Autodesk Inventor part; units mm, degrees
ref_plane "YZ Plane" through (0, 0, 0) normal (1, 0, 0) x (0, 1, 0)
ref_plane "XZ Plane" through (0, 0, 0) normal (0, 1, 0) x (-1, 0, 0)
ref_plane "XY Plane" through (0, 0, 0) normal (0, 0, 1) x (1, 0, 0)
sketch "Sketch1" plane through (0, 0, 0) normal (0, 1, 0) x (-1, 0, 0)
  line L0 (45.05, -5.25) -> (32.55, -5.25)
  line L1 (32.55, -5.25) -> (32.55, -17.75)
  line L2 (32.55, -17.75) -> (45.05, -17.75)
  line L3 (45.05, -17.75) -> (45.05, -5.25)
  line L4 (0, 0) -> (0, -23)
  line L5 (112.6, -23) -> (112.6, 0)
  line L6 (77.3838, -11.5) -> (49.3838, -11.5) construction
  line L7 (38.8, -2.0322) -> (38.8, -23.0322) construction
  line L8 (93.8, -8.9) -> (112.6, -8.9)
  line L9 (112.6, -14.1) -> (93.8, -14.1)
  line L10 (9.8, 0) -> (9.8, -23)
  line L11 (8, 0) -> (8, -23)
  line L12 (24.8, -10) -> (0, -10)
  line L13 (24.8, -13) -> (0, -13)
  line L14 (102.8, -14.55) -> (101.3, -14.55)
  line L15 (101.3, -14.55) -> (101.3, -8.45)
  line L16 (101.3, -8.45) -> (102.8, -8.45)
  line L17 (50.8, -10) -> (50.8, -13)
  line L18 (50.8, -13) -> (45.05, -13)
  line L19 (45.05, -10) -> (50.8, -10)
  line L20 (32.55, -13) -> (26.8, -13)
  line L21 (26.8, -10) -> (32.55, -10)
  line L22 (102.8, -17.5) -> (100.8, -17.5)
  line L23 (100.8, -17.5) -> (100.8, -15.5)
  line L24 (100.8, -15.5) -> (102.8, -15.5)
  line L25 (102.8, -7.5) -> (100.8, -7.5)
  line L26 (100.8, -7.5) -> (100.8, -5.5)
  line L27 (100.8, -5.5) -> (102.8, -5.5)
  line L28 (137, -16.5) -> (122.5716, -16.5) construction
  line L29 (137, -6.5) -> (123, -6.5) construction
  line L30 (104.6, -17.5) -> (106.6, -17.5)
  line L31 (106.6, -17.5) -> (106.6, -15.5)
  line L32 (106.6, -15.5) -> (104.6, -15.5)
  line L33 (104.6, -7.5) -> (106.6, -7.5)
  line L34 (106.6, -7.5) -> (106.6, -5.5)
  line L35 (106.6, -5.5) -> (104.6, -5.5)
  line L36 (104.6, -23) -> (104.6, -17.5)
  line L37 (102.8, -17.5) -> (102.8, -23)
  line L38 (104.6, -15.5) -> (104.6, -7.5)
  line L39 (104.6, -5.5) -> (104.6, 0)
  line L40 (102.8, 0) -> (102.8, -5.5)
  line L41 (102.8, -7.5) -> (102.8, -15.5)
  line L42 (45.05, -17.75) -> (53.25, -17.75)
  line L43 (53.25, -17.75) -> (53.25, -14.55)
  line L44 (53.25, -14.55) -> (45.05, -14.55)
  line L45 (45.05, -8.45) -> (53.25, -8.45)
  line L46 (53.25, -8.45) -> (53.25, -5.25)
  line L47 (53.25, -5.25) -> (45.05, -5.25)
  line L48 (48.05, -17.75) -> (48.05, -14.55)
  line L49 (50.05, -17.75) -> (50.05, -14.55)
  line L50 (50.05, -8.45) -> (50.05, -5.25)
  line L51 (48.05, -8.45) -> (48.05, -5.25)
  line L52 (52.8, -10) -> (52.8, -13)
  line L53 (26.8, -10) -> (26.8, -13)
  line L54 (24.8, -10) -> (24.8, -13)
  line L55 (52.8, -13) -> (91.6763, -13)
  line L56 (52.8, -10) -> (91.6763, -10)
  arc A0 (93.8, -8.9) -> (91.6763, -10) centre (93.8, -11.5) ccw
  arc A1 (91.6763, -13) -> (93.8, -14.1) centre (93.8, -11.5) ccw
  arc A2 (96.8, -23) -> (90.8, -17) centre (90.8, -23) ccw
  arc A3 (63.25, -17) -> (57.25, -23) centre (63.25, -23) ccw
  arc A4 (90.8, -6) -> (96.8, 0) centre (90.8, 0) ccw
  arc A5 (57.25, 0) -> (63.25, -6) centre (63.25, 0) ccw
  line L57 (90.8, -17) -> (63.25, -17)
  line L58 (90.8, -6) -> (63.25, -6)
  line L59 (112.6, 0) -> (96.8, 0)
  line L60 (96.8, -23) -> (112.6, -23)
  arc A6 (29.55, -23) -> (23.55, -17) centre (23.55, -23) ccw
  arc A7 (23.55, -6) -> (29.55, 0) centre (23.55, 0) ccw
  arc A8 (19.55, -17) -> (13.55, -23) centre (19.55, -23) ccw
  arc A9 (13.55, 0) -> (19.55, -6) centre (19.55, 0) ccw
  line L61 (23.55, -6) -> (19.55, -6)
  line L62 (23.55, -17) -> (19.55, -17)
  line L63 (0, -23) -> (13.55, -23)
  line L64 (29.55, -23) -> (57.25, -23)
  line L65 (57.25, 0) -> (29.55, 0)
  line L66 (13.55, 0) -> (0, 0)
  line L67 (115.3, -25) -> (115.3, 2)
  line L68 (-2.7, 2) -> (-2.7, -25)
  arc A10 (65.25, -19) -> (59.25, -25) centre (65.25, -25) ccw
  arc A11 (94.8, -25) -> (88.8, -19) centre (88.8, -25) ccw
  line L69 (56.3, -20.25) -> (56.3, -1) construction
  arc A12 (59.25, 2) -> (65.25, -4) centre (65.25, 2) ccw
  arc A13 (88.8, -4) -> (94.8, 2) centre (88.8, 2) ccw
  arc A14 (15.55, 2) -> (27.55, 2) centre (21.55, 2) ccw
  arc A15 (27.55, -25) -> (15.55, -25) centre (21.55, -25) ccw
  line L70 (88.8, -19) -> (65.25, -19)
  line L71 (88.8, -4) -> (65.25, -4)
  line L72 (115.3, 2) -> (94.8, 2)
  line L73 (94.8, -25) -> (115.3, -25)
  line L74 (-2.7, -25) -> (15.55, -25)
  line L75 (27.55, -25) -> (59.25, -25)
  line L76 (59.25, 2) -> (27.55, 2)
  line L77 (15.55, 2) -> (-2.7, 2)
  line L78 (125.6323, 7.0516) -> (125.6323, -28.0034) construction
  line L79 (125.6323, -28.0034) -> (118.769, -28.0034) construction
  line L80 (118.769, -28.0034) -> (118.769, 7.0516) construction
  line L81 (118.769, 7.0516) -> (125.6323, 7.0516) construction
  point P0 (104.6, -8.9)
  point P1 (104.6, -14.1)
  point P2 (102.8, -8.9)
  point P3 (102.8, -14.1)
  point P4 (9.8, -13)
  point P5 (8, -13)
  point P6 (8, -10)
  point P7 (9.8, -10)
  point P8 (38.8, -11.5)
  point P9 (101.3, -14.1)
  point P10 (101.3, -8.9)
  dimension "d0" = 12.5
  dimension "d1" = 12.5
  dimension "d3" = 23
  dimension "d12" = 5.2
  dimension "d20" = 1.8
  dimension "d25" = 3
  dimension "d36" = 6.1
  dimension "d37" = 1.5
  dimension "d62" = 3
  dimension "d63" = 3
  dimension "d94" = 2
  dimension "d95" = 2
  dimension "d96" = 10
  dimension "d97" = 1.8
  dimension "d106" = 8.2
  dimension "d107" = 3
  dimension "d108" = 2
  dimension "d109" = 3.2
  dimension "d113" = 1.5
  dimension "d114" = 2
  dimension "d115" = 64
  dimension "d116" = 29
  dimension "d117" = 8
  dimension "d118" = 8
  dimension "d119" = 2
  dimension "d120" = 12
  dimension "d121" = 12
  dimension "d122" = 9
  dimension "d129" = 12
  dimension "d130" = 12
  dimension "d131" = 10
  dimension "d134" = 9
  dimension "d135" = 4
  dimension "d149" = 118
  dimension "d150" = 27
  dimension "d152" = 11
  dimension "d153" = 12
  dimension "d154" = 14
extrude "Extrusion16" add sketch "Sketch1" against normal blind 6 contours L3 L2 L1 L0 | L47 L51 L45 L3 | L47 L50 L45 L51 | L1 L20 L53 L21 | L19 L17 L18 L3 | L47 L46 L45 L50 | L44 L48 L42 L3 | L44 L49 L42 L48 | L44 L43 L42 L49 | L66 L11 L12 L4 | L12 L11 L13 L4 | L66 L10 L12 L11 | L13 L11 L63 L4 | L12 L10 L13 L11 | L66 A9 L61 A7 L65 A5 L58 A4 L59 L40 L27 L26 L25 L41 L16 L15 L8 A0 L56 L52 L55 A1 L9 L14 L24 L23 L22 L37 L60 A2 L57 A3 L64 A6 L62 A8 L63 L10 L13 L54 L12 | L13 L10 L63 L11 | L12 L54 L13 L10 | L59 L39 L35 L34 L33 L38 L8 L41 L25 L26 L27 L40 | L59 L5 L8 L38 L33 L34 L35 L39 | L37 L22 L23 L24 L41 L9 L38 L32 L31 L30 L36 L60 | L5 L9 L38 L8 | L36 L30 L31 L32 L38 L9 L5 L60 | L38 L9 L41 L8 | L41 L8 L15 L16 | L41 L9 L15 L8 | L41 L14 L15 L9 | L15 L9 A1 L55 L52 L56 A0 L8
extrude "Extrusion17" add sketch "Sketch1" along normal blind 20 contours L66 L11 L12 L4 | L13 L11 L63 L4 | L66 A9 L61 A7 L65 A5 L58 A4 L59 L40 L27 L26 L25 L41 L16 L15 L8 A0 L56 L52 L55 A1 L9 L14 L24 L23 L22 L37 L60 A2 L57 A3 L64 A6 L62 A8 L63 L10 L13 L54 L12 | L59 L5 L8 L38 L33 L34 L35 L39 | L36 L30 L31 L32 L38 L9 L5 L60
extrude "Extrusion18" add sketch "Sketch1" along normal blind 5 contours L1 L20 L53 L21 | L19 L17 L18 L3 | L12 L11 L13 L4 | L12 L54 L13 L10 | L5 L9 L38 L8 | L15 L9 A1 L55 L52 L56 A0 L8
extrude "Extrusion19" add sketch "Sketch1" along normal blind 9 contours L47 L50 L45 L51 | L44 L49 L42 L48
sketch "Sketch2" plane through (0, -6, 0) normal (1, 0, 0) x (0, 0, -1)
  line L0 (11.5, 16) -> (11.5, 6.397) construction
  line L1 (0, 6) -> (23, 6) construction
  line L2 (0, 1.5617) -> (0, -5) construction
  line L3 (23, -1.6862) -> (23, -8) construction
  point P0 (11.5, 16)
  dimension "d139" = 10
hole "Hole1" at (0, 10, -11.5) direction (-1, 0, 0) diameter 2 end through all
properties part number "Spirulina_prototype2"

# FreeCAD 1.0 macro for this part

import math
import FreeCAD as App
import Part
import Sketcher
Q = App.Units.Quantity


def add_polygon(sketch, points):
    """Adds a closed chain of lines whose ends are joined by coincident constraints."""
    first, n = sketch.GeometryCount, len(points)
    for a, b in zip(points, points[1:] + points[:1]):
        sketch.addGeometry(Part.LineSegment(App.Vector(*a, 0), App.Vector(*b, 0)), False)
    for i in range(n):
        sketch.addConstraint(Sketcher.Constraint("Coincident", first + i, 2, first + (i + 1) % n, 1))

doc = App.newDocument("Part")
body = doc.addObject("PartDesign::Body", "Body")

sketch1 = doc.addObject("Sketcher::SketchObject", "Sketch")
body.addObject(sketch1)
sketch1.AttachmentSupport = (doc.XZ_Plane, [""])
sketch1.MapMode = "FlatFace"
sketch1.addGeometry(Part.LineSegment(App.Vector(-13.6, 0, 0), App.Vector(0, 0, 0)), False)
sketch1.addGeometry(Part.LineSegment(App.Vector(0, 0, 0), App.Vector(0, -23, 0)), False)
sketch1.addGeometry(Part.LineSegment(App.Vector(0, -23, 0), App.Vector(-13.6, -23, 0)), False)
sketch1.addGeometry(Part.ArcOfCircle(Part.Circle(App.Vector(-19.6, -23, 0), App.Vector(0, 0, 1), 6), math.radians(0), math.radians(90)), False)
sketch1.addGeometry(Part.LineSegment(App.Vector(-19.6, -17, 0), App.Vector(-23.6, -17, 0)), False)
sketch1.addGeometry(Part.ArcOfCircle(Part.Circle(App.Vector(-23.6, -23, 0), App.Vector(0, 0, 1), 6), math.radians(90), math.radians(180)), False)
sketch1.addGeometry(Part.LineSegment(App.Vector(-29.6, -23, 0), App.Vector(-57.2, -23, 0)), False)
sketch1.addGeometry(Part.ArcOfCircle(Part.Circle(App.Vector(-63.2, -23, 0), App.Vector(0, 0, 1), 6), math.radians(0), math.radians(90)), False)
sketch1.addGeometry(Part.LineSegment(App.Vector(-63.2, -17, 0), App.Vector(-90.8, -17, 0)), False)
sketch1.addGeometry(Part.ArcOfCircle(Part.Circle(App.Vector(-90.8, -23, 0), App.Vector(0, 0, 1), 6), math.radians(90), math.radians(180)), False)
sketch1.addGeometry(Part.LineSegment(App.Vector(-96.8, -23, 0), App.Vector(-112.6, -23, 0)), False)
sketch1.addGeometry(Part.LineSegment(App.Vector(-112.6, -23, 0), App.Vector(-112.6, 0, 0)), False)
sketch1.addGeometry(Part.LineSegment(App.Vector(-112.6, 0, 0), App.Vector(-96.8, 0, 0)), False)
sketch1.addGeometry(Part.ArcOfCircle(Part.Circle(App.Vector(-90.8, 0, 0), App.Vector(0, 0, 1), 6), math.radians(180), math.radians(270)), False)
sketch1.addGeometry(Part.LineSegment(App.Vector(-90.8, -6, 0), App.Vector(-63.2, -6, 0)), False)
sketch1.addGeometry(Part.ArcOfCircle(Part.Circle(App.Vector(-63.2, 0, 0), App.Vector(0, 0, 1), 6), math.radians(-90), math.radians(0)), False)
sketch1.addGeometry(Part.LineSegment(App.Vector(-57.2, 0, 0), App.Vector(-29.6, 0, 0)), False)
sketch1.addGeometry(Part.ArcOfCircle(Part.Circle(App.Vector(-23.6, 0, 0), App.Vector(0, 0, 1), 6), math.radians(180), math.radians(270)), False)
sketch1.addGeometry(Part.LineSegment(App.Vector(-23.6, -6, 0), App.Vector(-19.6, -6, 0)), False)
sketch1.addGeometry(Part.ArcOfCircle(Part.Circle(App.Vector(-19.6, 0, 0), App.Vector(0, 0, 1), 6), math.radians(-90), math.radians(0)), False)
sketch1.addConstraint(Sketcher.Constraint("Coincident", 0, 2, 1, 1))
sketch1.addConstraint(Sketcher.Constraint("Coincident", 1, 2, 2, 1))
sketch1.addConstraint(Sketcher.Constraint("Coincident", 2, 2, 3, 1))
sketch1.addConstraint(Sketcher.Constraint("Tangent", 3, 2, 4, 1))
sketch1.addConstraint(Sketcher.Constraint("Tangent", 4, 2, 5, 1))
sketch1.addConstraint(Sketcher.Constraint("Coincident", 5, 2, 6, 1))
sketch1.addConstraint(Sketcher.Constraint("Coincident", 6, 2, 7, 1))
sketch1.addConstraint(Sketcher.Constraint("Tangent", 7, 2, 8, 1))
sketch1.addConstraint(Sketcher.Constraint("Tangent", 8, 2, 9, 1))
sketch1.addConstraint(Sketcher.Constraint("Coincident", 9, 2, 10, 1))
sketch1.addConstraint(Sketcher.Constraint("Coincident", 10, 2, 11, 1))
sketch1.addConstraint(Sketcher.Constraint("Coincident", 11, 2, 12, 1))
sketch1.addConstraint(Sketcher.Constraint("Coincident", 12, 2, 13, 1))
sketch1.addConstraint(Sketcher.Constraint("Tangent", 13, 2, 14, 1))
sketch1.addConstraint(Sketcher.Constraint("Tangent", 14, 2, 15, 1))
sketch1.addConstraint(Sketcher.Constraint("Coincident", 15, 2, 16, 1))
sketch1.addConstraint(Sketcher.Constraint("Coincident", 16, 2, 17, 1))
sketch1.addConstraint(Sketcher.Constraint("Tangent", 17, 2, 18, 1))
sketch1.addConstraint(Sketcher.Constraint("Tangent", 18, 2, 19, 1))
sketch1.addConstraint(Sketcher.Constraint("Coincident", 19, 2, 0, 1))
sketch1.addConstraint(Sketcher.Constraint("Horizontal", 0))
sketch1.addConstraint(Sketcher.Constraint("Vertical", 1))
sketch1.addConstraint(Sketcher.Constraint("Horizontal", 2))
sketch1.addConstraint(Sketcher.Constraint("Horizontal", 4))
sketch1.addConstraint(Sketcher.Constraint("Horizontal", 6))
sketch1.addConstraint(Sketcher.Constraint("Horizontal", 8))
sketch1.addConstraint(Sketcher.Constraint("Horizontal", 10))
sketch1.addConstraint(Sketcher.Constraint("Vertical", 11))
sketch1.addConstraint(Sketcher.Constraint("Horizontal", 12))
sketch1.addConstraint(Sketcher.Constraint("Horizontal", 14))
sketch1.addConstraint(Sketcher.Constraint("Horizontal", 16))
sketch1.addConstraint(Sketcher.Constraint("Horizontal", 18))
sketch1.addConstraint(Sketcher.Constraint("Coincident", 0, 2, -1, 1))
sketch1.addConstraint(Sketcher.Constraint("Equal", 3, 5))
sketch1.addConstraint(Sketcher.Constraint("Equal", 5, 7))
sketch1.addConstraint(Sketcher.Constraint("Equal", 7, 9))
sketch1.addConstraint(Sketcher.Constraint("Equal", 9, 13))
sketch1.addConstraint(Sketcher.Constraint("Equal", 13, 15))
sketch1.addConstraint(Sketcher.Constraint("Equal", 15, 17))
sketch1.addConstraint(Sketcher.Constraint("Equal", 17, 19))
sketch1.addConstraint(Sketcher.Constraint("PointOnObject", 13, 3, -1))
sketch1.addConstraint(Sketcher.Constraint("PointOnObject", 17, 3, -1))
sketch1.addConstraint(Sketcher.Constraint("PointOnObject", 11, 2, -1))
sketch1.addConstraint(Sketcher.Constraint("PointOnObject", 15, 2, -1))
sketch1.addConstraint(Sketcher.Constraint("Horizontal", 5, 3, 7, 3))
sketch1.addConstraint(Sketcher.Constraint("Horizontal", 9, 3, 1, 2))
sketch1.addConstraint(Sketcher.Constraint("Horizontal", 2, 2, 5, 2))
sketch1.addConstraint(Sketcher.Constraint("Horizontal", 6, 2, 9, 2))
sketch1.addConstraint(Sketcher.Constraint("Vertical", 9, 3, 13, 3))
sketch1.addConstraint(Sketcher.Constraint("Vertical", 7, 3, 15, 3))
sketch1.addConstraint(Sketcher.Constraint("Vertical", 5, 3, 17, 3))
sketch1.addConstraint(Sketcher.Constraint("Vertical", 3, 3, 19, 3))
sketch1.addConstraint(Sketcher.Constraint("Radius", 3, Q("6 mm")))
sketch1.addConstraint(Sketcher.Constraint("DistanceX", 4, 2, 4, 1, Q("4 mm")))
sketch1.addConstraint(Sketcher.Constraint("DistanceY", 1, 2, 1, 1, Q("23 mm")))
sketch1.addConstraint(Sketcher.Constraint("DistanceX", 6, 2, 6, 1, Q("27.7 mm")))
sketch1.addConstraint(Sketcher.Constraint("DistanceX", 10, 2, 10, 1, Q("15.8 mm")))
sketch1.addConstraint(Sketcher.Constraint("DistanceX", 0, 1, 0, 2, Q("13.55 mm")))
sketch1.addConstraint(Sketcher.Constraint("DistanceX", 8, 2, 8, 1, Q("27.55 mm")))
pad1 = doc.addObject("PartDesign::Pad", "Pad")
body.addObject(pad1)
pad1.Profile = sketch1
pad1.Length = 6

sketch2 = doc.addObject("Sketcher::SketchObject", "Sketch001")
body.addObject(sketch2)
sketch2.AttachmentSupport = (doc.XZ_Plane, [""])
sketch2.MapMode = "FlatFace"
add_polygon(sketch2, [(-8, 0), (0, 0), (0, -10), (-8, -10)])
add_polygon(sketch2, [(-8, -13), (0, -13), (0, -23), (-8, -23)])
sketch2.addGeometry(Part.LineSegment(App.Vector(-13.55, 0, 0), App.Vector(-9.8, 0, 0)), False)
sketch2.addGeometry(Part.LineSegment(App.Vector(-9.8, 0, 0), App.Vector(-9.8, -10, 0)), False)
sketch2.addGeometry(Part.LineSegment(App.Vector(-9.8, -10, 0), App.Vector(-24.8, -10, 0)), False)
sketch2.addGeometry(Part.LineSegment(App.Vector(-24.8, -10, 0), App.Vector(-24.8, -13, 0)), False)
sketch2.addGeometry(Part.LineSegment(App.Vector(-24.8, -13, 0), App.Vector(-9.8, -13, 0)), False)
sketch2.addGeometry(Part.LineSegment(App.Vector(-9.8, -13, 0), App.Vector(-9.8, -23, 0)), False)
sketch2.addGeometry(Part.LineSegment(App.Vector(-9.8, -23, 0), App.Vector(-13.55, -23, 0)), False)
sketch2.addGeometry(Part.ArcOfCircle(Part.Circle(App.Vector(-19.55, -23, 0), App.Vector(0, 0, 1), 6), math.radians(0), math.radians(90)), False)
sketch2.addGeometry(Part.LineSegment(App.Vector(-19.55, -17, 0), App.Vector(-23.55, -17, 0)), False)
sketch2.addGeometry(Part.ArcOfCircle(Part.Circle(App.Vector(-23.55, -23, 0), App.Vector(0, 0, 1), 6), math.radians(90), math.radians(180)), False)
sketch2.addGeometry(Part.LineSegment(App.Vector(-29.55, -23, 0), App.Vector(-57.25, -23, 0)), False)
sketch2.addGeometry(Part.ArcOfCircle(Part.Circle(App.Vector(-63.25, -23, 0), App.Vector(0, 0, 1), 6), math.radians(0), math.radians(90)), False)
sketch2.addGeometry(Part.LineSegment(App.Vector(-63.25, -17, 0), App.Vector(-90.8, -17, 0)), False)
sketch2.addGeometry(Part.ArcOfCircle(Part.Circle(App.Vector(-90.8, -23, 0), App.Vector(0, 0, 1), 6), math.radians(90), math.radians(180)), False)
sketch2.addGeometry(Part.LineSegment(App.Vector(-96.8, -23, 0), App.Vector(-102.8, -23, 0)), False)
sketch2.addGeometry(Part.LineSegment(App.Vector(-102.8, -23, 0), App.Vector(-102.8, -17.5, 0)), False)
sketch2.addGeometry(Part.LineSegment(App.Vector(-102.8, -17.5, 0), App.Vector(-100.8, -17.5, 0)), False)
sketch2.addGeometry(Part.LineSegment(App.Vector(-100.8, -17.5, 0), App.Vector(-100.8, -15.5, 0)), False)
sketch2.addGeometry(Part.LineSegment(App.Vector(-100.8, -15.5, 0), App.Vector(-102.8, -15.5, 0)), False)
sketch2.addGeometry(Part.LineSegment(App.Vector(-102.8, -15.5, 0), App.Vector(-102.8, -14.55, 0)), False)
sketch2.addGeometry(Part.LineSegment(App.Vector(-102.8, -14.55, 0), App.Vector(-101.3, -14.55, 0)), False)
sketch2.addGeometry(Part.LineSegment(App.Vector(-101.3, -14.55, 0), App.Vector(-101.3, -14.1, 0)), False)
sketch2.addGeometry(Part.LineSegment(App.Vector(-101.3, -14.1, 0), App.Vector(-93.8, -14.1, 0)), False)
sketch2.addGeometry(Part.ArcOfCircle(Part.Circle(App.Vector(-93.8, -11.5, 0), App.Vector(0, 0, 1), 2.6), math.radians(-90), math.radians(-35)), False)
sketch2.addGeometry(Part.LineSegment(App.Vector(-91.68, -13, 0), App.Vector(-52.8, -13, 0)), False)
sketch2.addGeometry(Part.LineSegment(App.Vector(-52.8, -13, 0), App.Vector(-52.8, -10, 0)), False)
sketch2.addGeometry(Part.LineSegment(App.Vector(-52.8, -10, 0), App.Vector(-91.68, -10, 0)), False)
sketch2.addGeometry(Part.ArcOfCircle(Part.Circle(App.Vector(-93.8, -11.5, 0), App.Vector(0, 0, 1), 2.6), math.radians(35), math.radians(90)), False)
sketch2.addGeometry(Part.LineSegment(App.Vector(-93.8, -8.9, 0), App.Vector(-101.3, -8.9, 0)), False)
sketch2.addGeometry(Part.LineSegment(App.Vector(-101.3, -8.9, 0), App.Vector(-101.3, -8.45, 0)), False)
sketch2.addGeometry(Part.LineSegment(App.Vector(-101.3, -8.45, 0), App.Vector(-102.8, -8.45, 0)), False)
sketch2.addGeometry(Part.LineSegment(App.Vector(-102.8, -8.45, 0), App.Vector(-102.8, -7.5, 0)), False)
sketch2.addGeometry(Part.LineSegment(App.Vector(-102.8, -7.5, 0), App.Vector(-100.8, -7.5, 0)), False)
sketch2.addGeometry(Part.LineSegment(App.Vector(-100.8, -7.5, 0), App.Vector(-100.8, -5.5, 0)), False)
sketch2.addGeometry(Part.LineSegment(App.Vector(-100.8, -5.5, 0), App.Vector(-102.8, -5.5, 0)), False)
sketch2.addGeometry(Part.LineSegment(App.Vector(-102.8, -5.5, 0), App.Vector(-102.8, 0, 0)), False)
sketch2.addGeometry(Part.LineSegment(App.Vector(-102.8, 0, 0), App.Vector(-96.8, 0, 0)), False)
sketch2.addGeometry(Part.ArcOfCircle(Part.Circle(App.Vector(-90.8, 0, 0), App.Vector(0, 0, 1), 6), math.radians(180), math.radians(270)), False)
sketch2.addGeometry(Part.LineSegment(App.Vector(-90.8, -6, 0), App.Vector(-63.25, -6, 0)), False)
sketch2.addGeometry(Part.ArcOfCircle(Part.Circle(App.Vector(-63.25, 0, 0), App.Vector(0, 0, 1), 6), math.radians(-90), math.radians(0)), False)
sketch2.addGeometry(Part.LineSegment(App.Vector(-57.25, 0, 0), App.Vector(-29.55, 0, 0)), False)
sketch2.addGeometry(Part.ArcOfCircle(Part.Circle(App.Vector(-23.55, 0, 0), App.Vector(0, 0, 1), 6), math.radians(180), math.radians(270)), False)
sketch2.addGeometry(Part.LineSegment(App.Vector(-23.55, -6, 0), App.Vector(-19.55, -6, 0)), False)
sketch2.addGeometry(Part.ArcOfCircle(Part.Circle(App.Vector(-19.55, 0, 0), App.Vector(0, 0, 1), 6), math.radians(-90), math.radians(0)), False)
add_polygon(sketch2, [(-32.55, -5.25), (-53.25, -5.25), (-53.25, -8.45), (-45.05, -8.45), (-45.05, -10), (-50.8, -10), (-50.8, -13), (-45.05, -13), (-45.05, -14.55), (-53.25, -14.55), (-53.25, -17.75), (-32.55, -17.75), (-32.55, -13), (-26.8, -13), (-26.8, -10), (-32.55, -10)])
add_polygon(sketch2, [(-112.6, 0), (-104.6, 0), (-104.6, -5.5), (-106.6, -5.5), (-106.6, -7.5), (-104.6, -7.5), (-104.6, -8.9), (-112.6, -8.9)])
add_polygon(sketch2, [(-104.6, -17.5), (-104.6, -23), (-112.6, -23), (-112.6, -14.1), (-104.6, -14.1), (-104.6, -15.5), (-106.6, -15.5), (-106.6, -17.5)])
sketch2.addConstraint(Sketcher.Constraint("Coincident", 8, 2, 9, 1))
sketch2.addConstraint(Sketcher.Constraint("Coincident", 9, 2, 10, 1))
sketch2.addConstraint(Sketcher.Constraint("Coincident", 10, 2, 11, 1))
sketch2.addConstraint(Sketcher.Constraint("Coincident", 11, 2, 12, 1))
sketch2.addConstraint(Sketcher.Constraint("Coincident", 12, 2, 13, 1))
sketch2.addConstraint(Sketcher.Constraint("Coincident", 13, 2, 14, 1))
sketch2.addConstraint(Sketcher.Constraint("Coincident", 14, 2, 15, 1))
sketch2.addConstraint(Sketcher.Constraint("Tangent", 15, 2, 16, 1))
sketch2.addConstraint(Sketcher.Constraint("Tangent", 16, 2, 17, 1))
sketch2.addConstraint(Sketcher.Constraint("Coincident", 17, 2, 18, 1))
sketch2.addConstraint(Sketcher.Constraint("Coincident", 18, 2, 19, 1))
sketch2.addConstraint(Sketcher.Constraint("Tangent", 19, 2, 20, 1))
sketch2.addConstraint(Sketcher.Constraint("Tangent", 20, 2, 21, 1))
sketch2.addConstraint(Sketcher.Constraint("Coincident", 21, 2, 22, 1))
sketch2.addConstraint(Sketcher.Constraint("Coincident", 22, 2, 23, 1))
sketch2.addConstraint(Sketcher.Constraint("Coincident", 23, 2, 24, 1))
sketch2.addConstraint(Sketcher.Constraint("Coincident", 24, 2, 25, 1))
sketch2.addConstraint(Sketcher.Constraint("Coincident", 25, 2, 26, 1))
sketch2.addConstraint(Sketcher.Constraint("Coincident", 26, 2, 27, 1))
sketch2.addConstraint(Sketcher.Constraint("Coincident", 27, 2, 28, 1))
sketch2.addConstraint(Sketcher.Constraint("Coincident", 28, 2, 29, 1))
sketch2.addConstraint(Sketcher.Constraint("Coincident", 29, 2, 30, 1))
sketch2.addConstraint(Sketcher.Constraint("Tangent", 30, 2, 31, 1))
sketch2.addConstraint(Sketcher.Constraint("Coincident", 31, 2, 32, 1))
sketch2.addConstraint(Sketcher.Constraint("Coincident", 32, 2, 33, 1))
sketch2.addConstraint(Sketcher.Constraint("Coincident", 33, 2, 34, 1))
sketch2.addConstraint(Sketcher.Constraint("Coincident", 34, 2, 35, 1))
sketch2.addConstraint(Sketcher.Constraint("Tangent", 35, 2, 36, 1))
sketch2.addConstraint(Sketcher.Constraint("Coincident", 36, 2, 37, 1))
sketch2.addConstraint(Sketcher.Constraint("Coincident", 37, 2, 38, 1))
sketch2.addConstraint(Sketcher.Constraint("Coincident", 38, 2, 39, 1))
sketch2.addConstraint(Sketcher.Constraint("Coincident", 39, 2, 40, 1))
sketch2.addConstraint(Sketcher.Constraint("Coincident", 40, 2, 41, 1))
sketch2.addConstraint(Sketcher.Constraint("Coincident", 41, 2, 42, 1))
sketch2.addConstraint(Sketcher.Constraint("Coincident", 42, 2, 43, 1))
sketch2.addConstraint(Sketcher.Constraint("Coincident", 43, 2, 44, 1))
sketch2.addConstraint(Sketcher.Constraint("Coincident", 44, 2, 45, 1))
sketch2.addConstraint(Sketcher.Constraint("Tangent", 45, 2, 46, 1))
sketch2.addConstraint(Sketcher.Constraint("Tangent", 46, 2, 47, 1))
sketch2.addConstraint(Sketcher.Constraint("Coincident", 47, 2, 48, 1))
sketch2.addConstraint(Sketcher.Constraint("Coincident", 48, 2, 49, 1))
sketch2.addConstraint(Sketcher.Constraint("Tangent", 49, 2, 50, 1))
sketch2.addConstraint(Sketcher.Constraint("Tangent", 50, 2, 51, 1))
sketch2.addConstraint(Sketcher.Constraint("Coincident", 51, 2, 8, 1))
sketch2.addConstraint(Sketcher.Constraint("Horizontal", 0))
sketch2.addConstraint(Sketcher.Constraint("Vertical", 1))
sketch2.addConstraint(Sketcher.Constraint("Horizontal", 2))
sketch2.addConstraint(Sketcher.Constraint("Vertical", 3))
sketch2.addConstraint(Sketcher.Constraint("Horizontal", 4))
sketch2.addConstraint(Sketcher.Constraint("Vertical", 5))
sketch2.addConstraint(Sketcher.Constraint("Horizontal", 6))
sketch2.addConstraint(Sketcher.Constraint("Vertical", 7))
sketch2.addConstraint(Sketcher.Constraint("Horizontal", 8))
sketch2.addConstraint(Sketcher.Constraint("Vertical", 9))
sketch2.addConstraint(Sketcher.Constraint("Horizontal", 10))
sketch2.addConstraint(Sketcher.Constraint("Vertical", 11))
sketch2.addConstraint(Sketcher.Constraint("Horizontal", 12))
sketch2.addConstraint(Sketcher.Constraint("Vertical", 13))
sketch2.addConstraint(Sketcher.Constraint("Horizontal", 14))
sketch2.addConstraint(Sketcher.Constraint("Horizontal", 16))
sketch2.addConstraint(Sketcher.Constraint("Horizontal", 18))
sketch2.addConstraint(Sketcher.Constraint("Horizontal", 20))
sketch2.addConstraint(Sketcher.Constraint("Horizontal", 22))
sketch2.addConstraint(Sketcher.Constraint("Vertical", 23))
sketch2.addConstraint(Sketcher.Constraint("Horizontal", 24))
sketch2.addConstraint(Sketcher.Constraint("Vertical", 25))
sketch2.addConstraint(Sketcher.Constraint("Horizontal", 26))
sketch2.addConstraint(Sketcher.Constraint("Vertical", 27))
sketch2.addConstraint(Sketcher.Constraint("Horizontal", 28))
sketch2.addConstraint(Sketcher.Constraint("Vertical", 29))
sketch2.addConstraint(Sketcher.Constraint("Horizontal", 30))
sketch2.addConstraint(Sketcher.Constraint("Horizontal", 32))
sketch2.addConstraint(Sketcher.Constraint("Vertical", 33))
sketch2.addConstraint(Sketcher.Constraint("Horizontal", 34))
sketch2.addConstraint(Sketcher.Constraint("Horizontal", 36))
sketch2.addConstraint(Sketcher.Constraint("Vertical", 37))
sketch2.addConstraint(Sketcher.Constraint("Horizontal", 38))
sketch2.addConstraint(Sketcher.Constraint("Vertical", 39))
sketch2.addConstraint(Sketcher.Constraint("Horizontal", 40))
sketch2.addConstraint(Sketcher.Constraint("Vertical", 41))
sketch2.addConstraint(Sketcher.Constraint("Horizontal", 42))
sketch2.addConstraint(Sketcher.Constraint("Vertical", 43))
sketch2.addConstraint(Sketcher.Constraint("Horizontal", 44))
sketch2.addConstraint(Sketcher.Constraint("Horizontal", 46))
sketch2.addConstraint(Sketcher.Constraint("Horizontal", 48))
sketch2.addConstraint(Sketcher.Constraint("Horizontal", 50))
sketch2.addConstraint(Sketcher.Constraint("Horizontal", 52))
sketch2.addConstraint(Sketcher.Constraint("Vertical", 53))
sketch2.addConstraint(Sketcher.Constraint("Horizontal", 54))
sketch2.addConstraint(Sketcher.Constraint("Vertical", 55))
sketch2.addConstraint(Sketcher.Constraint("Horizontal", 56))
sketch2.addConstraint(Sketcher.Constraint("Vertical", 57))
sketch2.addConstraint(Sketcher.Constraint("Horizontal", 58))
sketch2.addConstraint(Sketcher.Constraint("Vertical", 59))
sketch2.addConstraint(Sketcher.Constraint("Horizontal", 60))
sketch2.addConstraint(Sketcher.Constraint("Vertical", 61))
sketch2.addConstraint(Sketcher.Constraint("Horizontal", 62))
sketch2.addConstraint(Sketcher.Constraint("Vertical", 63))
sketch2.addConstraint(Sketcher.Constraint("Horizontal", 64))
sketch2.addConstraint(Sketcher.Constraint("Vertical", 65))
sketch2.addConstraint(Sketcher.Constraint("Horizontal", 66))
sketch2.addConstraint(Sketcher.Constraint("Vertical", 67))
sketch2.addConstraint(Sketcher.Constraint("Horizontal", 68))
sketch2.addConstraint(Sketcher.Constraint("Vertical", 69))
sketch2.addConstraint(Sketcher.Constraint("Horizontal", 70))
sketch2.addConstraint(Sketcher.Constraint("Vertical", 71))
sketch2.addConstraint(Sketcher.Constraint("Horizontal", 72))
sketch2.addConstraint(Sketcher.Constraint("Vertical", 73))
sketch2.addConstraint(Sketcher.Constraint("Horizontal", 74))
sketch2.addConstraint(Sketcher.Constraint("Vertical", 75))
sketch2.addConstraint(Sketcher.Constraint("Vertical", 76))
sketch2.addConstraint(Sketcher.Constraint("Horizontal", 77))
sketch2.addConstraint(Sketcher.Constraint("Vertical", 78))
sketch2.addConstraint(Sketcher.Constraint("Horizontal", 79))
sketch2.addConstraint(Sketcher.Constraint("Vertical", 80))
sketch2.addConstraint(Sketcher.Constraint("Horizontal", 81))
sketch2.addConstraint(Sketcher.Constraint("Vertical", 82))
sketch2.addConstraint(Sketcher.Constraint("Horizontal", 83))
sketch2.addConstraint(Sketcher.Constraint("Coincident", 0, 2, -1, 1))
sketch2.addConstraint(Sketcher.Constraint("Coincident", 35, 3, 31, 3))
sketch2.addConstraint(Sketcher.Constraint("Equal", 15, 17))
sketch2.addConstraint(Sketcher.Constraint("Equal", 17, 19))
sketch2.addConstraint(Sketcher.Constraint("Equal", 19, 21))
sketch2.addConstraint(Sketcher.Constraint("Equal", 31, 35))
sketch2.addConstraint(Sketcher.Constraint("Equal", 21, 45))
sketch2.addConstraint(Sketcher.Constraint("Equal", 45, 47))
sketch2.addConstraint(Sketcher.Constraint("Equal", 47, 49))
sketch2.addConstraint(Sketcher.Constraint("Equal", 49, 51))
sketch2.addConstraint(Sketcher.Constraint("PointOnObject", 45, 3, -1))
sketch2.addConstraint(Sketcher.Constraint("PointOnObject", 49, 3, -1))
sketch2.addConstraint(Sketcher.Constraint("PointOnObject", 4, 2, -2))
sketch2.addConstraint(Sketcher.Constraint("PointOnObject", 8, 2, -1))
sketch2.addConstraint(Sketcher.Constraint("PointOnObject", 43, 2, -1))
sketch2.addConstraint(Sketcher.Constraint("PointOnObject", 47, 2, -1))
sketch2.addConstraint(Sketcher.Constraint("PointOnObject", 68, 2, -1))
sketch2.addConstraint(Sketcher.Constraint("Horizontal", 17, 3, 19, 3))
sketch2.addConstraint(Sketcher.Constraint("Horizontal", 21, 3, 5, 2))
sketch2.addConstraint(Sketcher.Constraint("Horizontal", 2, 2, 9, 2))
sketch2.addConstraint(Sketcher.Constraint("Horizontal", 7, 2, 11, 2))
sketch2.addConstraint(Sketcher.Constraint("Horizontal", 6, 2, 13, 2))
sketch2.addConstraint(Sketcher.Constraint("Horizontal", 14, 2, 17, 2))
sketch2.addConstraint(Sketcher.Constraint("Horizontal", 18, 2, 21, 2))
sketch2.addConstraint(Sketcher.Constraint("Horizontal", 12, 2, 31, 2))
sketch2.addConstraint(Sketcher.Constraint("Horizontal", 10, 2, 33, 2))
sketch2.addConstraint(Sketcher.Constraint("Horizontal", 38, 2, 53, 2))
sketch2.addConstraint(Sketcher.Constraint("Horizontal", 34, 2, 55, 2))
sketch2.addConstraint(Sketcher.Constraint("Horizontal", 32, 2, 57, 2))
sketch2.addConstraint(Sketcher.Constraint("Horizontal", 28, 2, 59, 2))
sketch2.addConstraint(Sketcher.Constraint("Horizontal", 58, 2, 63, 2))
sketch2.addConstraint(Sketcher.Constraint("Horizontal", 56, 2, 65, 2))
sketch2.addConstraint(Sketcher.Constraint("Horizontal", 42, 2, 69, 2))
sketch2.addConstraint(Sketcher.Constraint("Horizontal", 40, 2, 71, 2))
sketch2.addConstraint(Sketcher.Constraint("Horizontal", 36, 2, 73, 2))
sketch2.addConstraint(Sketcher.Constraint("Horizontal", 22, 2, 76, 2))
sketch2.addConstraint(Sketcher.Constraint("Horizontal", 30, 2, 78, 2))
sketch2.addConstraint(Sketcher.Constraint("Horizontal", 26, 2, 80, 2))
sketch2.addConstraint(Sketcher.Constraint("Horizontal", 24, 2, 82, 2))
sketch2.addConstraint(Sketcher.Constraint("Vertical", 21, 3, 45, 3))
sketch2.addConstraint(Sketcher.Constraint("Vertical", 19, 3, 47, 3))
sketch2.addConstraint(Sketcher.Constraint("Vertical", 17, 3, 49, 3))
sketch2.addConstraint(Sketcher.Constraint("Vertical", 15, 3, 51, 3))
sketch2.addConstraint(Sketcher.Constraint("Vertical", 3, 2, 6, 2))
sketch2.addConstraint(Sketcher.Constraint("Vertical", 9, 2, 12, 2))
sketch2.addConstraint(Sketcher.Constraint("Vertical", 23, 2, 26, 2))
sketch2.addConstraint(Sketcher.Constraint("Vertical", 31, 2, 34, 2))
sketch2.addConstraint(Sketcher.Constraint("Vertical", 29, 2, 36, 2))
sketch2.addConstraint(Sketcher.Constraint("Vertical", 27, 2, 38, 2))
sketch2.addConstraint(Sketcher.Constraint("Vertical", 25, 2, 40, 2))
sketch2.addConstraint(Sketcher.Constraint("Vertical", 39, 2, 42, 2))
sketch2.addConstraint(Sketcher.Constraint("Vertical", 55, 2, 58, 2))
sketch2.addConstraint(Sketcher.Constraint("Vertical", 53, 2, 60, 2))
sketch2.addConstraint(Sketcher.Constraint("Vertical", 63, 2, 66, 2))
sketch2.addConstraint(Sketcher.Constraint("Vertical", 69, 2, 72, 2))
sketch2.addConstraint(Sketcher.Constraint("Vertical", 73, 2, 76, 2))
sketch2.addConstraint(Sketcher.Constraint("Vertical", 75, 2, 77, 2))
sketch2.addConstraint(Sketcher.Constraint("Vertical", 76, 2, 79, 2))
sketch2.addConstraint(Sketcher.Constraint("Vertical", 71, 2, 81, 2))
sketch2.addConstraint(Sketcher.Constraint("Equal", 58, 64))
sketch2.addConstraint(Sketcher.Constraint("Equal", 6, 68))
sketch2.addConstraint(Sketcher.Constraint("Equal", 42, 70))
sketch2.addConstraint(Sketcher.Constraint("Equal", 3, 5))
sketch2.addConstraint(Sketcher.Constraint("Equal", 83, 25))
sketch2.addConstraint(Sketcher.Constraint("Equal", 29, 37))
sketch2.addConstraint(Sketcher.Constraint("Equal", 27, 39))
sketch2.addConstraint(Sketcher.Constraint("Equal", 25, 41))
sketch2.addConstraint(Sketcher.Constraint("Equal", 53, 61))
sketch2.addConstraint(Sketcher.Constraint("Radius", 15, Q("6 mm")))
sketch2.addConstraint(Sketcher.Constraint("Radius", 31, Q("2.6 mm")))
sketch2.addConstraint(Sketcher.Constraint("DistanceX", 0, 1, 0, 2, Q("8 mm")))
sketch2.addConstraint(Sketcher.Constraint("DistanceX", 16, 2, 16, 1, Q("4 mm")))
sketch2.addConstraint(Sketcher.Constraint("DistanceX", 24, 1, 24, 2, Q("2 mm")))
sketch2.addConstraint(Sketcher.Constraint("DistanceY", 1, 2, 1, 1, Q("10 mm")))
sketch2.addConstraint(Sketcher.Constraint("DistanceY", 11, 2, 11, 1, Q("3 mm")))
sketch2.addConstraint(Sketcher.Constraint("DistanceX", 28, 1, 28, 2, Q("1.5 mm")))
sketch2.addConstraint(Sketcher.Constraint("DistanceX", 54, 1, 54, 2, Q("8.2 mm")))
sketch2.addConstraint(Sketcher.Constraint("DistanceY", 53, 2, 53, 1, Q("3.2 mm")))
sketch2.addConstraint(Sketcher.Constraint("DistanceX", 10, 2, 10, 1, Q("15 mm")))
sketch2.addConstraint(Sketcher.Constraint("DistanceX", 22, 2, 22, 1, Q("6 mm")))
sketch2.addConstraint(Sketcher.Constraint("DistanceX", 18, 2, 18, 1, Q("27.7 mm")))
sketch2.addConstraint(Sketcher.Constraint("DistanceX", 30, 1, 30, 2, Q("7.5 mm")))
sketch2.addConstraint(Sketcher.Constraint("DistanceX", 52, 2, 52, 1, Q("20.7 mm")))
sketch2.addConstraint(Sketcher.Constraint("DistanceY", 23, 1, 23, 2, Q("5.5 mm")))
sketch2.addConstraint(Sketcher.Constraint("DistanceX", 8, 1, 8, 2, Q("3.75 mm")))
sketch2.addConstraint(Sketcher.Constraint("DistanceX", 20, 2, 20, 1, Q("27.55 mm")))
sketch2.addConstraint(Sketcher.Constraint("DistanceX", 56, 2, 56, 1, Q("5.75 mm")))
sketch2.addConstraint(Sketcher.Constraint("DistanceY", 27, 1, 27, 2, Q("0.95 mm")))
sketch2.addConstraint(Sketcher.Constraint("DistanceX", 21, 3, -1, 1, Q("90.8 mm")))
sketch2.addConstraint(Sketcher.Constraint("DistanceX", 32, 2, -1, 1, Q("52.8 mm")))
sketch2.addConstraint(Sketcher.Constraint("DistanceX", 56, 2, -1, 1, Q("50.8 mm")))
sketch2.addConstraint(Sketcher.Constraint("DistanceX", 68, 2, -1, 1, Q("104.6 mm")))
pad2 = doc.addObject("PartDesign::Pad", "Pad001")
body.addObject(pad2)
pad2.Profile = sketch2
pad2.Length = 20
pad2.Reversed = True

sketch3 = doc.addObject("Sketcher::SketchObject", "Sketch002")
body.addObject(sketch3)
sketch3.AttachmentSupport = (doc.XZ_Plane, [""])
sketch3.MapMode = "FlatFace"
add_polygon(sketch3, [(-32.5, -13), (-32.5, -10), (-26.8, -10), (-26.8, -13)])
add_polygon(sketch3, [(-50.8, -10), (-45, -10), (-45, -13), (-50.8, -13)])
add_polygon(sketch3, [(-8, -10), (0, -10), (0, -13), (-8, -13)])
add_polygon(sketch3, [(-24.8, -10), (-9.8, -10), (-9.8, -13), (-24.8, -13)])
add_polygon(sketch3, [(-112.6, -14.1), (-112.6, -8.9), (-104.6, -8.9), (-104.6, -14.1)])
sketch3.addGeometry(Part.LineSegment(App.Vector(-101.3, -14.1, 0), App.Vector(-101.3, -8.9, 0)), False)
sketch3.addGeometry(Part.LineSegment(App.Vector(-101.3, -8.9, 0), App.Vector(-93.8, -8.9, 0)), False)
sketch3.addGeometry(Part.ArcOfCircle(Part.Circle(App.Vector(-93.8, -11.5, 0), App.Vector(0, 0, 1), 2.6), math.radians(35), math.radians(90)), False)
sketch3.addGeometry(Part.LineSegment(App.Vector(-91.7, -10, 0), App.Vector(-52.8, -10, 0)), False)
sketch3.addGeometry(Part.LineSegment(App.Vector(-52.8, -10, 0), App.Vector(-52.8, -13, 0)), False)
sketch3.addGeometry(Part.LineSegment(App.Vector(-52.8, -13, 0), App.Vector(-91.7, -13, 0)), False)
sketch3.addGeometry(Part.ArcOfCircle(Part.Circle(App.Vector(-93.8, -11.5, 0), App.Vector(0, 0, 1), 2.6), math.radians(-90), math.radians(-35)), False)
sketch3.addGeometry(Part.LineSegment(App.Vector(-93.8, -14.1, 0), App.Vector(-101.3, -14.1, 0)), False)
sketch3.addConstraint(Sketcher.Constraint("Coincident", 20, 2, 21, 1))
sketch3.addConstraint(Sketcher.Constraint("Tangent", 21, 2, 22, 2))
sketch3.addConstraint(Sketcher.Constraint("Coincident", 22, 1, 23, 1))
sketch3.addConstraint(Sketcher.Constraint("Coincident", 23, 2, 24, 1))
sketch3.addConstraint(Sketcher.Constraint("Coincident", 24, 2, 25, 1))
sketch3.addConstraint(Sketcher.Constraint("Coincident", 25, 2, 26, 2))
sketch3.addConstraint(Sketcher.Constraint("Tangent", 26, 1, 27, 1))
sketch3.addConstraint(Sketcher.Constraint("Coincident", 27, 2, 20, 1))
sketch3.addConstraint(Sketcher.Constraint("Vertical", 0))
sketch3.addConstraint(Sketcher.Constraint("Horizontal", 1))
sketch3.addConstraint(Sketcher.Constraint("Vertical", 2))
sketch3.addConstraint(Sketcher.Constraint("Horizontal", 3))
sketch3.addConstraint(Sketcher.Constraint("Horizontal", 4))
sketch3.addConstraint(Sketcher.Constraint("Vertical", 5))
sketch3.addConstraint(Sketcher.Constraint("Horizontal", 6))
sketch3.addConstraint(Sketcher.Constraint("Vertical", 7))
sketch3.addConstraint(Sketcher.Constraint("Horizontal", 8))
sketch3.addConstraint(Sketcher.Constraint("Vertical", 9))
sketch3.addConstraint(Sketcher.Constraint("Horizontal", 10))
sketch3.addConstraint(Sketcher.Constraint("Vertical", 11))
sketch3.addConstraint(Sketcher.Constraint("Horizontal", 12))
sketch3.addConstraint(Sketcher.Constraint("Vertical", 13))
sketch3.addConstraint(Sketcher.Constraint("Horizontal", 14))
sketch3.addConstraint(Sketcher.Constraint("Vertical", 15))
sketch3.addConstraint(Sketcher.Constraint("Vertical", 16))
sketch3.addConstraint(Sketcher.Constraint("Horizontal", 17))
sketch3.addConstraint(Sketcher.Constraint("Vertical", 18))
sketch3.addConstraint(Sketcher.Constraint("Horizontal", 19))
sketch3.addConstraint(Sketcher.Constraint("Vertical", 20))
sketch3.addConstraint(Sketcher.Constraint("Horizontal", 21))
sketch3.addConstraint(Sketcher.Constraint("Horizontal", 23))
sketch3.addConstraint(Sketcher.Constraint("Vertical", 24))
sketch3.addConstraint(Sketcher.Constraint("Horizontal", 25))
sketch3.addConstraint(Sketcher.Constraint("Horizontal", 27))
sketch3.addConstraint(Sketcher.Constraint("Coincident", 26, 3, 22, 3))
sketch3.addConstraint(Sketcher.Constraint("Equal", 22, 26))
sketch3.addConstraint(Sketcher.Constraint("PointOnObject", 8, 2, -2))
sketch3.addConstraint(Sketcher.Constraint("Horizontal", 1, 2, 4, 2))
sketch3.addConstraint(Sketcher.Constraint("Horizontal", 3, 2, 5, 2))
sketch3.addConstraint(Sketcher.Constraint("Horizontal", 7, 2, 8, 2))
sketch3.addConstraint(Sketcher.Constraint("Horizontal", 6, 2, 9, 2))
sketch3.addConstraint(Sketcher.Constraint("Horizontal", 11, 2, 12, 2))
sketch3.addConstraint(Sketcher.Constraint("Horizontal", 10, 2, 13, 2))
sketch3.addConstraint(Sketcher.Constraint("Horizontal", 17, 2, 20, 2))
sketch3.addConstraint(Sketcher.Constraint("Horizontal", 15, 2, 22, 1))
sketch3.addConstraint(Sketcher.Constraint("Horizontal", 14, 2, 24, 2))
sketch3.addConstraint(Sketcher.Constraint("Horizontal", 19, 2, 26, 1))
sketch3.addConstraint(Sketcher.Constraint("Vertical", 22, 1, 25, 2))
sketch3.addConstraint(Sketcher.Constraint("Equal", 3, 4))
sketch3.addConstraint(Sketcher.Constraint("Equal", 10, 17))
sketch3.addConstraint(Sketcher.Constraint("Radius", 22, Q("2.6 mm")))
sketch3.addConstraint(Sketcher.Constraint("DistanceX", 8, 1, 8, 2, Q("8 mm")))
sketch3.addConstraint(Sketcher.Constraint("DistanceY", 0, 1, 0, 2, Q("3 mm")))
sketch3.addConstraint(Sketcher.Constraint("DistanceY", 0, 2, -1, 1, Q("10 mm")))
sketch3.addConstraint(Sketcher.Constraint("DistanceX", 2, 2, 14, 2, Q("2 mm")))
sketch3.addConstraint(Sketcher.Constraint("DistanceX", 23, 2, 7, 2, Q("2 mm")))
sketch3.addConstraint(Sketcher.Constraint("DistanceX", 4, 2, 0, 2, Q("12.5 mm")))
sketch3.addConstraint(Sketcher.Constraint("DistanceX", 12, 2, 11, 2, Q("1.8 mm")))
sketch3.addConstraint(Sketcher.Constraint("DistanceX", 12, 1, 12, 2, Q("15 mm")))
sketch3.addConstraint(Sketcher.Constraint("DistanceX", 21, 1, 21, 2, Q("7.5 mm")))
sketch3.addConstraint(Sketcher.Constraint("DistanceX", 22, 3, 1, 2, Q("67 mm")))
sketch3.addConstraint(Sketcher.Constraint("DistanceX", 6, 2, 2, 2, Q("24 mm")))
sketch3.addConstraint(Sketcher.Constraint("DistanceX", 16, 2, -1, 1, Q("112.6 mm")))
pad3 = doc.addObject("PartDesign::Pad", "Pad002")
body.addObject(pad3)
pad3.Profile = sketch3
pad3.Length = 5
pad3.Reversed = True

sketch4 = doc.addObject("Sketcher::SketchObject", "Sketch003")
body.addObject(sketch4)
sketch4.AttachmentSupport = (doc.XZ_Plane, [""])
sketch4.MapMode = "FlatFace"
add_polygon(sketch4, [(-50, -5.2), (-48, -5.2), (-48, -8.4), (-50, -8.4)])
add_polygon(sketch4, [(-50, -14.6), (-48, -14.6), (-48, -17.8), (-50, -17.8)])
sketch4.addConstraint(Sketcher.Constraint("Horizontal", 0))
sketch4.addConstraint(Sketcher.Constraint("Vertical", 1))
sketch4.addConstraint(Sketcher.Constraint("Horizontal", 2))
sketch4.addConstraint(Sketcher.Constraint("Vertical", 3))
sketch4.addConstraint(Sketcher.Constraint("Horizontal", 4))
sketch4.addConstraint(Sketcher.Constraint("Vertical", 5))
sketch4.addConstraint(Sketcher.Constraint("Horizontal", 6))
sketch4.addConstraint(Sketcher.Constraint("Vertical", 7))
sketch4.addConstraint(Sketcher.Constraint("Vertical", 1, 2, 4, 2))
sketch4.addConstraint(Sketcher.Constraint("Vertical", 3, 2, 6, 2))
sketch4.addConstraint(Sketcher.Constraint("Equal", 3, 5))
sketch4.addConstraint(Sketcher.Constraint("DistanceX", 0, 1, 0, 2, Q("2 mm")))
sketch4.addConstraint(Sketcher.Constraint("DistanceY", 1, 2, 1, 1, Q("3.2 mm")))
sketch4.addConstraint(Sketcher.Constraint("DistanceY", 4, 2, 1, 2, Q("6.1 mm")))
sketch4.addConstraint(Sketcher.Constraint("DistanceX", 0, 2, -1, 1, Q("48.05 mm")))
sketch4.addConstraint(Sketcher.Constraint("DistanceY", 0, 2, -1, 1, Q("5.25 mm")))
pad4 = doc.addObject("PartDesign::Pad", "Pad003")
body.addObject(pad4)
pad4.Profile = sketch4
pad4.Length = 9
pad4.Reversed = True

sketch5 = doc.addObject("Sketcher::SketchObject", "Sketch004")
body.addObject(sketch5)
sketch5.AttachmentSupport = (doc.YZ_Plane, [""])
sketch5.MapMode = "FlatFace"
sketch5.addGeometry(Part.Circle(App.Vector(10, -11.5, 0), App.Vector(0, 0, 1), 1), False)
sketch5.addConstraint(Sketcher.Constraint("Diameter", 0, Q("2 mm")))
sketch5.addConstraint(Sketcher.Constraint("DistanceX", -1, 1, 0, 3, Q("10 mm")))
sketch5.addConstraint(Sketcher.Constraint("DistanceY", 0, 3, -1, 1, Q("11.5 mm")))
doc.recompute()
hole = doc.addObject("PartDesign::Hole", "Hole")
body.addObject(hole)
hole.Profile = sketch5
hole.ThreadType = "None"
hole.Diameter = 2
hole.DepthType = "ThroughAll"

doc.recompute()
